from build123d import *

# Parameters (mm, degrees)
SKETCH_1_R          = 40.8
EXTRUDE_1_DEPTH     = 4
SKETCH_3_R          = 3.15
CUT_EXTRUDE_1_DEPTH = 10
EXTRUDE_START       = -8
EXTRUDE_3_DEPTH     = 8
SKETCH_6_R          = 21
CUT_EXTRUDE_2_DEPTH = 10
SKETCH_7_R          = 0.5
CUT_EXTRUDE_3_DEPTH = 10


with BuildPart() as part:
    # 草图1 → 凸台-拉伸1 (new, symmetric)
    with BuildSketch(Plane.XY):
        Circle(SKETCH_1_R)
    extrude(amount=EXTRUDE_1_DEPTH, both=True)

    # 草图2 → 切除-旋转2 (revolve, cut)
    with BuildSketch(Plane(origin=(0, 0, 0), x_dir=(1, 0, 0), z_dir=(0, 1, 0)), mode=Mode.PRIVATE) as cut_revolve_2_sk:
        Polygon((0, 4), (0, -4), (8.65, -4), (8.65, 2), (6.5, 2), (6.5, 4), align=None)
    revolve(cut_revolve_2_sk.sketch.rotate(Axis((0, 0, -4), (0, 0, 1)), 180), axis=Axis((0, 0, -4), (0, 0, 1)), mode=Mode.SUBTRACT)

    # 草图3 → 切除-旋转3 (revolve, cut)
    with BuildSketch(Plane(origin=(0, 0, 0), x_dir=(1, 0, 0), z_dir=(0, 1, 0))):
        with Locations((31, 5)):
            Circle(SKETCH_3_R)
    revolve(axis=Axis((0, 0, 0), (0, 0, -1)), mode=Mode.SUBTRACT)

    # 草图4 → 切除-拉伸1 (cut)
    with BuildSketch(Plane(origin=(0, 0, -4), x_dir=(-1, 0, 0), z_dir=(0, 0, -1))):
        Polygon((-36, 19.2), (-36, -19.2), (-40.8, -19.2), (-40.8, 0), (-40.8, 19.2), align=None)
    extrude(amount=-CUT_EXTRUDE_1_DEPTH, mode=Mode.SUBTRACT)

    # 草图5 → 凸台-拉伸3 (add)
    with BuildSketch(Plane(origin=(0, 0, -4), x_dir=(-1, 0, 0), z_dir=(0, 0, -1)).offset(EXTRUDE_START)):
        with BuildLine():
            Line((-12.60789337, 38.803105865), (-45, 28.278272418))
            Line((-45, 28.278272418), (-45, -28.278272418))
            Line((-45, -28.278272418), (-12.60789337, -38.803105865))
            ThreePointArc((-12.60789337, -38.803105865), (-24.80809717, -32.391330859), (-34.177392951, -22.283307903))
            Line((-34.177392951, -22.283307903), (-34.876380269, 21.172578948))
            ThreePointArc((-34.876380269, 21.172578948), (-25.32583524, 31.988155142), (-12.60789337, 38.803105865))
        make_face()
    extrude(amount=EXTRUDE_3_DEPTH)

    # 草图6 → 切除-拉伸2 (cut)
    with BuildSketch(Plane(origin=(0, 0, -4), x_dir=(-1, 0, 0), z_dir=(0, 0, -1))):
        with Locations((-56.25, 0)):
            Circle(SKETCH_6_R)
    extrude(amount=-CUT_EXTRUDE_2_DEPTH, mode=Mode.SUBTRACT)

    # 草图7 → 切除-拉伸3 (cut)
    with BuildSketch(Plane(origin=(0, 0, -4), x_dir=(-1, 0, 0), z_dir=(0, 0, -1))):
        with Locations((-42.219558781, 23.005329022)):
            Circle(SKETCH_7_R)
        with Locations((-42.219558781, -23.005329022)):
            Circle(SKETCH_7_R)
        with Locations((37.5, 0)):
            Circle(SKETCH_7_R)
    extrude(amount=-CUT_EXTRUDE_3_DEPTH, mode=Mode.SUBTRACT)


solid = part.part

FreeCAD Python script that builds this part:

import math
import FreeCAD as App
import Part
import Sketcher

V = App.Vector
Q = App.Units.Quantity


def add_polygon(sketch, points):
    """Adds a closed chain of lines whose ends are joined by coincident constraints."""
    first, n = sketch.GeometryCount, len(points)
    for a, b in zip(points, points[1:] + points[:1]):
        sketch.addGeometry(Part.LineSegment(App.Vector(*a, 0), App.Vector(*b, 0)), False)
    for i in range(n):
        sketch.addConstraint(Sketcher.Constraint("Coincident", first + i, 2, first + (i + 1) % n, 1))

doc = App.newDocument("Part")
body = doc.addObject("PartDesign::Body", "Body")

sketch1 = doc.addObject("Sketcher::SketchObject", "Sketch")
body.addObject(sketch1)
sketch1.AttachmentSupport = (doc.XY_Plane, [""])
sketch1.MapMode = "FlatFace"
sketch1.addGeometry(Part.Circle(V(0, 0, 0), V(0, 0, 1), 41), False)
sketch1.addConstraint([
    Sketcher.Constraint("Coincident", 0, 3, -1, 1),
    Sketcher.Constraint("Diameter", 0, Q("81.6 mm")),
])
pad1 = doc.addObject("PartDesign::Pad", "Pad")
body.addObject(pad1)
pad1.Profile = sketch1
pad1.Length = 8
pad1.Midplane = True

sketch2 = doc.addObject("Sketcher::SketchObject", "Sketch001")
body.addObject(sketch2)
sketch2.AttachmentSupport = (doc.XZ_Plane, [""])
sketch2.MapMode = "FlatFace"
add_polygon(sketch2, [(0, -4), (0, 4), (8.7, 4), (8.7, -2), (6.5, -2), (6.5, -4)])
sketch2.addConstraint([
    Sketcher.Constraint("Vertical", 0),
    Sketcher.Constraint("Horizontal", 1),
    Sketcher.Constraint("Vertical", 2),
    Sketcher.Constraint("Horizontal", 3),
    Sketcher.Constraint("Vertical", 4),
    Sketcher.Constraint("Horizontal", 5),
    Sketcher.Constraint("Symmetric", 0, 2, 5, 2, -1, 1),
    Sketcher.Constraint("DistanceY", 0, 1, 0, 2, Q("8 mm")),
    Sketcher.Constraint("DistanceY", 2, 2, 2, 1, Q("6 mm")),
    Sketcher.Constraint("DistanceX", 5, 2, 5, 1, Q("6.5 mm")),
    Sketcher.Constraint("DistanceX", 1, 1, 1, 2, Q("8.65 mm")),
])
groove = doc.addObject("PartDesign::Groove", "Groove")
body.addObject(groove)
groove.Profile = sketch2
groove.ReferenceAxis = (sketch2, ["V_Axis"])
groove.Angle = 360

sketch3 = doc.addObject("Sketcher::SketchObject", "Sketch002")
body.addObject(sketch3)
sketch3.AttachmentSupport = (doc.XZ_Plane, [""])
sketch3.MapMode = "FlatFace"
sketch3.addGeometry(Part.Circle(V(31, -5, 0), V(0, 0, 1), 3.1), False)
sketch3.addConstraint([
    Sketcher.Constraint("Diameter", 0, Q("6.3 mm")),
    Sketcher.Constraint("DistanceX", -1, 1, 0, 3, Q("31 mm")),
    Sketcher.Constraint("DistanceY", 0, 3, -1, 1, Q("5 mm")),
])
groove2 = doc.addObject("PartDesign::Groove", "Groove001")
body.addObject(groove2)
groove2.Profile = sketch3
groove2.ReferenceAxis = (sketch3, ["V_Axis"])
groove2.Angle = 360

sketch4 = doc.addObject("Sketcher::SketchObject", "Sketch003")
body.addObject(sketch4)
sketch4.AttachmentSupport = (doc.XY_Plane, [""])
sketch4.MapMode = "FlatFace"
sketch4.AttachmentOffset = App.Placement(V(0, 0, -4), App.Rotation())
add_polygon(sketch4, [(36, -19.2), (36, 19.2), (40.8, 19.2), (40.8, -19.2)])
sketch4.addConstraint([
    Sketcher.Constraint("Vertical", 0),
    Sketcher.Constraint("Horizontal", 1),
    Sketcher.Constraint("Vertical", 2),
    Sketcher.Constraint("Horizontal", 3),
    Sketcher.Constraint("DistanceX", 1, 1, 1, 2, Q("4.8 mm")),
    Sketcher.Constraint("DistanceY", 0, 1, 0, 2, Q("38.4 mm")),
    Sketcher.Constraint("DistanceX", -1, 1, 0, 2, Q("36 mm")),
    Sketcher.Constraint("DistanceY", -1, 1, 0, 2, Q("19.2 mm")),
])
pocket1 = doc.addObject("PartDesign::Pocket", "Pocket")
body.addObject(pocket1)
pocket1.Profile = sketch4
pocket1.Length = 10
pocket1.Reversed = True

sketch5 = doc.addObject("Sketcher::SketchObject", "Sketch004")
body.addObject(sketch5)
sketch5.AttachmentSupport = (doc.XY_Plane, [""])
sketch5.MapMode = "FlatFace"
sketch5.AttachmentOffset = App.Placement(V(0, 0, 4), App.Rotation())
sketch5.addGeometry([
    Part.LineSegment(V(13, 39, 0), V(45, 28, 0)),
    Part.LineSegment(V(45, 28, 0), V(45, -28, 0)),
    Part.LineSegment(V(45, -28, 0), V(13, -39, 0)),
    Part.ArcOfCircle(Part.Circle(V(0, 0, 0), V(0, 0, 1), 41), math.radians(-72), math.radians(-33)),
    Part.LineSegment(V(34, -22, 0), V(35, 21, 0)),
    Part.ArcOfCircle(Part.Circle(V(0, 0, 0), V(0, 0, 1), 41), math.radians(31), math.radians(72)),
], False)
sketch5.addConstraint([
    Sketcher.Constraint("Coincident", 0, 2, 1, 1),
    Sketcher.Constraint("Coincident", 1, 2, 2, 1),
    Sketcher.Constraint("Tangent", 2, 2, 3, 1),
    Sketcher.Constraint("Coincident", 3, 2, 4, 1),
    Sketcher.Constraint("Coincident", 4, 2, 5, 1),
    Sketcher.Constraint("Tangent", 5, 2, 0, 1),
    Sketcher.Constraint("Vertical", 1),
    Sketcher.Constraint("Coincident", 3, 3, -1, 1),
    Sketcher.Constraint("Coincident", 5, 3, -1, 1),
    Sketcher.Constraint("Equal", 3, 5),
    Sketcher.Constraint("Vertical", 2, 2, 5, 2),
    Sketcher.Constraint("Radius", 3, Q("40.8 mm")),
    Sketcher.Constraint("Angle", 0, Q("-18 deg")),
    Sketcher.Constraint("DistanceX", -1, 1, 0, 2, Q("45 mm")),
    Sketcher.Constraint("DistanceX", 2, 2, 3, 2, Q("21.5695 mm")),
    Sketcher.Constraint("Distance", 4, Q("43.461508 mm")),
])
pad2 = doc.addObject("PartDesign::Pad", "Pad001")
body.addObject(pad2)
pad2.Profile = sketch5
pad2.Length = 8
pad2.Reversed = True

sketch6 = doc.addObject("Sketcher::SketchObject", "Sketch005")
body.addObject(sketch6)
sketch6.AttachmentSupport = (doc.XY_Plane, [""])
sketch6.MapMode = "FlatFace"
sketch6.AttachmentOffset = App.Placement(V(0, 0, -4), App.Rotation())
sketch6.addGeometry(Part.Circle(V(56, 0, 0), V(0, 0, 1), 21), False)
sketch6.addConstraint([
    Sketcher.Constraint("PointOnObject", 0, 3, -1),
    Sketcher.Constraint("Diameter", 0, Q("42 mm")),
    Sketcher.Constraint("DistanceX", -1, 1, 0, 3, Q("56.25 mm")),
])
pocket2 = doc.addObject("PartDesign::Pocket", "Pocket001")
body.addObject(pocket2)
pocket2.Profile = sketch6
pocket2.Length = 10
pocket2.Reversed = True

sketch7 = doc.addObject("Sketcher::SketchObject", "Sketch006")
body.addObject(sketch7)
sketch7.AttachmentSupport = (doc.XY_Plane, [""])
sketch7.MapMode = "FlatFace"
sketch7.AttachmentOffset = App.Placement(V(0, 0, -4), App.Rotation())
sketch7.addGeometry([
    Part.Circle(V(42.2, 23, 0), V(0, 0, 1), 0.5),
    Part.Circle(V(42.2, -23, 0), V(0, 0, 1), 0.5),
    Part.Circle(V(-37.5, 0, 0), V(0, 0, 1), 0.5),
], False)
sketch7.addConstraint([
    Sketcher.Constraint("Equal", 0, 1),
    Sketcher.Constraint("Equal", 1, 2),
    Sketcher.Constraint("Symmetric", 0, 3, 1, 3, -1),
    Sketcher.Constraint("PointOnObject", 2, 3, -1),
    Sketcher.Constraint("Diameter", 0, Q("1 mm")),
    Sketcher.Constraint("DistanceX", 2, 3, -1, 1, Q("37.5 mm")),
    Sketcher.Constraint("DistanceX", -1, 1, 0, 3, Q("42.219559 mm")),
    Sketcher.Constraint("DistanceY", -1, 1, 0, 3, Q("23.005329 mm")),
])
pocket3 = doc.addObject("PartDesign::Pocket", "Pocket002")
body.addObject(pocket3)
pocket3.Profile = sketch7
pocket3.Length = 10
pocket3.Reversed = True

doc.recompute()
